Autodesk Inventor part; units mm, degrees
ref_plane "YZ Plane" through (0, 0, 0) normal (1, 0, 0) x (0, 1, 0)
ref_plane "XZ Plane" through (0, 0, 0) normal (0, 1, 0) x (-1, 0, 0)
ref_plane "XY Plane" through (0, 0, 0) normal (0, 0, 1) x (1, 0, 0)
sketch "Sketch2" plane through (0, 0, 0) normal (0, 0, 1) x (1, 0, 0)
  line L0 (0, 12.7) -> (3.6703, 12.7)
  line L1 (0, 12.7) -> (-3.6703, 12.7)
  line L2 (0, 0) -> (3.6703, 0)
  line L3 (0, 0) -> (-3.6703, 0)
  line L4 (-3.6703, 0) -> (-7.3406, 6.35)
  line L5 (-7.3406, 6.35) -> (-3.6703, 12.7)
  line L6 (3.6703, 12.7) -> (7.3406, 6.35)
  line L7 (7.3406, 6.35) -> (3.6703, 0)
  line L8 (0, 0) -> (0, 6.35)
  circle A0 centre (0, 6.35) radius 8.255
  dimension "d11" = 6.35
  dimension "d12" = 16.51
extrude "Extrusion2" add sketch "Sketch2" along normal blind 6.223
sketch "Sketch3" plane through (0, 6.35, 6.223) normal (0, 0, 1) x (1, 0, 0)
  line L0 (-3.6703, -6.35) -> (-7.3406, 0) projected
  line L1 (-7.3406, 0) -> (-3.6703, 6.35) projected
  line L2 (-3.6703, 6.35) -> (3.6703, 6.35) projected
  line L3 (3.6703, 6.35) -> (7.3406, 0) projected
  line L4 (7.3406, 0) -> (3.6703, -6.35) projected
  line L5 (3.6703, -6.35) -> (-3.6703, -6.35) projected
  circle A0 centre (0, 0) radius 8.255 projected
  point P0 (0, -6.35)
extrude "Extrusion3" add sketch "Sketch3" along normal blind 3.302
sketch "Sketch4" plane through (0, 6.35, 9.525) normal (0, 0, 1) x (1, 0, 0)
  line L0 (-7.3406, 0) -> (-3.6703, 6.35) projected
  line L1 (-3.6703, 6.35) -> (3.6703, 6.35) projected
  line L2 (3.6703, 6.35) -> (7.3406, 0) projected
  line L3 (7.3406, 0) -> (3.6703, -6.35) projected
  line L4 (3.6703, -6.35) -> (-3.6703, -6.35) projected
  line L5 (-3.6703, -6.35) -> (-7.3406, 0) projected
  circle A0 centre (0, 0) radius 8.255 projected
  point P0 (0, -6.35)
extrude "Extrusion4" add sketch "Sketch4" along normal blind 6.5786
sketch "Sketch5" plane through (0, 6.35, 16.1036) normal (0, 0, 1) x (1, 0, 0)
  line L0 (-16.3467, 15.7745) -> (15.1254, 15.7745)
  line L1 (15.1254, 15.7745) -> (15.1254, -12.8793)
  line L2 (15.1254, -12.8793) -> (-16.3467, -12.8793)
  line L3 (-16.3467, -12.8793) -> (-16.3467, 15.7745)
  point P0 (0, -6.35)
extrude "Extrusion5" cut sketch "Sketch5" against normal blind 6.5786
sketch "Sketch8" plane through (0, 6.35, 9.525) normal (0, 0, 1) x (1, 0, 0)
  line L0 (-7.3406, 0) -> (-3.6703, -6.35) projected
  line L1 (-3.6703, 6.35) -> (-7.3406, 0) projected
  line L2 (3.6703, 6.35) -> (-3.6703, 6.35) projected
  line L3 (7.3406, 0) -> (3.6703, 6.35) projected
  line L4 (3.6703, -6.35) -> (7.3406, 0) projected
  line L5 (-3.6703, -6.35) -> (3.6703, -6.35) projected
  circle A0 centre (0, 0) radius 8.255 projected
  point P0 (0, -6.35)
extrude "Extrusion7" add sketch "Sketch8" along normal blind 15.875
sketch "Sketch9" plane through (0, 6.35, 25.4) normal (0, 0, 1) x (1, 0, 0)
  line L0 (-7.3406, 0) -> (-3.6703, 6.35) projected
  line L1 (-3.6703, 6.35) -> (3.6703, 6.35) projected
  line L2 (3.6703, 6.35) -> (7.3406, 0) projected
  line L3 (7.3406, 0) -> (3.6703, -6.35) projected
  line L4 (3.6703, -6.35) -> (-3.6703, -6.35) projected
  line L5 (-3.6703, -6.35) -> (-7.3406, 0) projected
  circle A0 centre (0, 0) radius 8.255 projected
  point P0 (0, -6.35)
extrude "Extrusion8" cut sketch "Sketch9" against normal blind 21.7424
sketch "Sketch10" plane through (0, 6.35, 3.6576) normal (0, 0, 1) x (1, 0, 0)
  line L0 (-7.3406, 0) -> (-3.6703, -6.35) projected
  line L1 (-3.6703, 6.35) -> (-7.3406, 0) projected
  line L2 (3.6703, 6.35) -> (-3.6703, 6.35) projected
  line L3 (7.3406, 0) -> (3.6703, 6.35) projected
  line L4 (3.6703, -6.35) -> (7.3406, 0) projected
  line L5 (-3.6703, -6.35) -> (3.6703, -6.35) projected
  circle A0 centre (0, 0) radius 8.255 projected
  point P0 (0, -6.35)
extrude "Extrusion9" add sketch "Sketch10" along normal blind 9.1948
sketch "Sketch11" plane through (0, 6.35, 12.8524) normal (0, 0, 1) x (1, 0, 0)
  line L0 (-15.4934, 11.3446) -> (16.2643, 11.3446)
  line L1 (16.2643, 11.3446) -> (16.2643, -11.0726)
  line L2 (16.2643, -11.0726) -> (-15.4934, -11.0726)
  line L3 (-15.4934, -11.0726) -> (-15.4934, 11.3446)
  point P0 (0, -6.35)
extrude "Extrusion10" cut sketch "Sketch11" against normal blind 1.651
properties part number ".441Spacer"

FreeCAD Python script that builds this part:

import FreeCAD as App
import Part
import Sketcher
Q = App.Units.Quantity

doc = App.newDocument("Part")
body = doc.addObject("PartDesign::Body", "Body")

sketch1 = body.newObject("Sketcher::SketchObject", "Sketch")
sketch1.AttachmentSupport = (doc.getObject("XY_Plane"), [""])
sketch1.MapMode = "FlatFace"
sketch1.addGeometry(Part.Circle(App.Vector(0, 6, 0), App.Vector(0, 0, 1), 8), False)
sketch1.addGeometry(Part.LineSegment(App.Vector(-4, 13, 0), App.Vector(4, 13, 0)), False)
sketch1.addGeometry(Part.LineSegment(App.Vector(4, 13, 0), App.Vector(7, 6, 0)), False)
sketch1.addGeometry(Part.LineSegment(App.Vector(7, 6, 0), App.Vector(4, 0, 0)), False)
sketch1.addGeometry(Part.LineSegment(App.Vector(4, 0, 0), App.Vector(-4, 0, 0)), False)
sketch1.addGeometry(Part.LineSegment(App.Vector(-4, 0, 0), App.Vector(-7, 6, 0)), False)
sketch1.addGeometry(Part.LineSegment(App.Vector(-7, 6, 0), App.Vector(-4, 13, 0)), False)
sketch1.addConstraint(Sketcher.Constraint("Coincident", 1, 2, 2, 1))
sketch1.addConstraint(Sketcher.Constraint("Coincident", 2, 2, 3, 1))
sketch1.addConstraint(Sketcher.Constraint("Coincident", 3, 2, 4, 1))
sketch1.addConstraint(Sketcher.Constraint("Coincident", 4, 2, 5, 1))
sketch1.addConstraint(Sketcher.Constraint("Coincident", 5, 2, 6, 1))
sketch1.addConstraint(Sketcher.Constraint("Coincident", 6, 2, 1, 1))
sketch1.addConstraint(Sketcher.Constraint("Horizontal", 1))
sketch1.addConstraint(Sketcher.Constraint("Horizontal", 4))
sketch1.addConstraint(Sketcher.Constraint("Symmetric", 3, 2, 4, 2, -1, 1))
sketch1.addConstraint(Sketcher.Constraint("Symmetric", 2, 2, 5, 2, -2))
sketch1.addConstraint(Sketcher.Constraint("PointOnObject", 0, 3, -2))
sketch1.addConstraint(Sketcher.Constraint("Parallel", 2, 5))
sketch1.addConstraint(Sketcher.Constraint("Parallel", 3, 6))
sketch1.addConstraint(Sketcher.Constraint("Horizontal", 0, 3, 2, 2))
sketch1.addConstraint(Sketcher.Constraint("Vertical", 1, 2, 3, 2))
sketch1.addConstraint(Sketcher.Constraint("Diameter", 0, Q("0.65 in")))
sketch1.addConstraint(Sketcher.Constraint("DistanceY", -1, 1, 0, 3, Q("0.25 in")))
sketch1.addConstraint(Sketcher.Constraint("DistanceX", 1, 1, 1, 2, Q("0.289 in")))
sketch1.addConstraint(Sketcher.Constraint("DistanceX", -1, 1, 2, 2, Q("0.289 in")))
pad1 = body.newObject("PartDesign::Pad", "Pad")
pad1.Profile = sketch1
pad1.Length = Q("0.245 in")

sketch2 = body.newObject("Sketcher::SketchObject", "Sketch001")
sketch2.AttachmentSupport = (doc.getObject("XY_Plane"), [""])
sketch2.MapMode = "FlatFace"
sketch2.AttachmentOffset = App.Placement(App.Vector(0, 0, 0.245 * 25.4), App.Rotation())
sketch2.addGeometry(Part.Circle(App.Vector(0, 6, 0), App.Vector(0, 0, 1), 8), False)
sketch2.addGeometry(Part.LineSegment(App.Vector(4, 0, 0), App.Vector(-4, 0, 0)), False)
sketch2.addGeometry(Part.LineSegment(App.Vector(-4, 0, 0), App.Vector(-7, 6, 0)), False)
sketch2.addGeometry(Part.LineSegment(App.Vector(-7, 6, 0), App.Vector(-4, 13, 0)), False)
sketch2.addGeometry(Part.LineSegment(App.Vector(-4, 13, 0), App.Vector(4, 13, 0)), False)
sketch2.addGeometry(Part.LineSegment(App.Vector(4, 13, 0), App.Vector(7, 6, 0)), False)
sketch2.addGeometry(Part.LineSegment(App.Vector(7, 6, 0), App.Vector(4, 0, 0)), False)
sketch2.addConstraint(Sketcher.Constraint("Coincident", 1, 2, 2, 1))
sketch2.addConstraint(Sketcher.Constraint("Coincident", 2, 2, 3, 1))
sketch2.addConstraint(Sketcher.Constraint("Coincident", 3, 2, 4, 1))
sketch2.addConstraint(Sketcher.Constraint("Coincident", 4, 2, 5, 1))
sketch2.addConstraint(Sketcher.Constraint("Coincident", 5, 2, 6, 1))
sketch2.addConstraint(Sketcher.Constraint("Coincident", 6, 2, 1, 1))
sketch2.addConstraint(Sketcher.Constraint("Horizontal", 1))
sketch2.addConstraint(Sketcher.Constraint("Horizontal", 4))
sketch2.addConstraint(Sketcher.Constraint("Symmetric", 1, 2, 6, 2, -1, 1))
sketch2.addConstraint(Sketcher.Constraint("Symmetric", 2, 2, 5, 2, -2))
sketch2.addConstraint(Sketcher.Constraint("PointOnObject", 0, 3, -2))
sketch2.addConstraint(Sketcher.Constraint("Parallel", 2, 5))
sketch2.addConstraint(Sketcher.Constraint("Parallel", 3, 6))
sketch2.addConstraint(Sketcher.Constraint("Horizontal", 0, 3, 2, 2))
sketch2.addConstraint(Sketcher.Constraint("Vertical", 1, 2, 3, 2))
sketch2.addConstraint(Sketcher.Constraint("Diameter", 0, Q("0.65 in")))
sketch2.addConstraint(Sketcher.Constraint("DistanceY", -1, 1, 3, 2, Q("0.5 in")))
sketch2.addConstraint(Sketcher.Constraint("DistanceX", 1, 2, 1, 1, Q("0.289 in")))
sketch2.addConstraint(Sketcher.Constraint("DistanceX", 2, 2, -1, 1, Q("0.289 in")))
pad2 = body.newObject("PartDesign::Pad", "Pad001")
pad2.Profile = sketch2
pad2.Length = Q("0.13 in")

sketch3 = body.newObject("Sketcher::SketchObject", "Sketch002")
sketch3.AttachmentSupport = (doc.getObject("XY_Plane"), [""])
sketch3.MapMode = "FlatFace"
sketch3.AttachmentOffset = App.Placement(App.Vector(0, 0, 0.375 * 25.4), App.Rotation())
sketch3.addGeometry(Part.Circle(App.Vector(0, 6, 0), App.Vector(0, 0, 1), 8), False)
sketch3.addGeometry(Part.LineSegment(App.Vector(-4, 0, 0), App.Vector(-7, 6, 0)), False)
sketch3.addGeometry(Part.LineSegment(App.Vector(-7, 6, 0), App.Vector(-4, 13, 0)), False)
sketch3.addGeometry(Part.LineSegment(App.Vector(-4, 13, 0), App.Vector(4, 13, 0)), False)
sketch3.addGeometry(Part.LineSegment(App.Vector(4, 13, 0), App.Vector(7, 6, 0)), False)
sketch3.addGeometry(Part.LineSegment(App.Vector(7, 6, 0), App.Vector(4, 0, 0)), False)
sketch3.addGeometry(Part.LineSegment(App.Vector(4, 0, 0), App.Vector(-4, 0, 0)), False)
sketch3.addConstraint(Sketcher.Constraint("Coincident", 1, 2, 2, 1))
sketch3.addConstraint(Sketcher.Constraint("Coincident", 2, 2, 3, 1))
sketch3.addConstraint(Sketcher.Constraint("Coincident", 3, 2, 4, 1))
sketch3.addConstraint(Sketcher.Constraint("Coincident", 4, 2, 5, 1))
sketch3.addConstraint(Sketcher.Constraint("Coincident", 5, 2, 6, 1))
sketch3.addConstraint(Sketcher.Constraint("Coincident", 6, 2, 1, 1))
sketch3.addConstraint(Sketcher.Constraint("Horizontal", 3))
sketch3.addConstraint(Sketcher.Constraint("Horizontal", 6))
sketch3.addConstraint(Sketcher.Constraint("Symmetric", 5, 2, 6, 2, -1, 1))
sketch3.addConstraint(Sketcher.Constraint("Symmetric", 1, 2, 4, 2, -2))
sketch3.addConstraint(Sketcher.Constraint("PointOnObject", 0, 3, -2))
sketch3.addConstraint(Sketcher.Constraint("Parallel", 1, 4))
sketch3.addConstraint(Sketcher.Constraint("Parallel", 2, 5))
sketch3.addConstraint(Sketcher.Constraint("Horizontal", 0, 3, 1, 2))
sketch3.addConstraint(Sketcher.Constraint("Vertical", 3, 2, 5, 2))
sketch3.addConstraint(Sketcher.Constraint("Diameter", 0, Q("0.65 in")))
sketch3.addConstraint(Sketcher.Constraint("DistanceY", -1, 1, 2, 2, Q("0.5 in")))
sketch3.addConstraint(Sketcher.Constraint("DistanceX", 3, 1, 3, 2, Q("0.289 in")))
sketch3.addConstraint(Sketcher.Constraint("DistanceX", 1, 2, -1, 1, Q("0.289 in")))
pad3 = body.newObject("PartDesign::Pad", "Pad002")
pad3.Profile = sketch3
pad3.Length = Q("0.259 in")

sketch4 = body.newObject("Sketcher::SketchObject", "Sketch003")
sketch4.AttachmentSupport = (doc.getObject("XY_Plane"), [""])
sketch4.MapMode = "FlatFace"
sketch4.AttachmentOffset = App.Placement(App.Vector(0, 0, 0.634 * 25.4), App.Rotation())
sketch4.addGeometry(Part.LineSegment(App.Vector(15, 22, 0), App.Vector(-16, 22, 0)), False)
sketch4.addGeometry(Part.LineSegment(App.Vector(-16, 22, 0), App.Vector(-16, -7, 0)), False)
sketch4.addGeometry(Part.LineSegment(App.Vector(-16, -7, 0), App.Vector(15, -7, 0)), False)
sketch4.addGeometry(Part.LineSegment(App.Vector(15, -7, 0), App.Vector(15, 22, 0)), False)
sketch4.addConstraint(Sketcher.Constraint("Coincident", 0, 2, 1, 1))
sketch4.addConstraint(Sketcher.Constraint("Coincident", 1, 2, 2, 1))
sketch4.addConstraint(Sketcher.Constraint("Coincident", 2, 2, 3, 1))
sketch4.addConstraint(Sketcher.Constraint("Coincident", 3, 2, 0, 1))
sketch4.addConstraint(Sketcher.Constraint("Horizontal", 0))
sketch4.addConstraint(Sketcher.Constraint("Vertical", 1))
sketch4.addConstraint(Sketcher.Constraint("Horizontal", 2))
sketch4.addConstraint(Sketcher.Constraint("Vertical", 3))
sketch4.addConstraint(Sketcher.Constraint("DistanceY", 1, 2, 1, 1, Q("1.1281 in")))
sketch4.addConstraint(Sketcher.Constraint("DistanceX", 0, 2, 0, 1, 31.472))
sketch4.addConstraint(Sketcher.Constraint("DistanceX", -1, 1, 2, 2, Q("0.5955 in")))
sketch4.addConstraint(Sketcher.Constraint("DistanceY", -1, 1, 0, 2, 22.1245))
pocket1 = body.newObject("PartDesign::Pocket", "Pocket")
pocket1.Profile = sketch4
pocket1.Length = Q("0.259 in")

sketch5 = body.newObject("Sketcher::SketchObject", "Sketch004")
sketch5.AttachmentSupport = (doc.getObject("XY_Plane"), [""])
sketch5.MapMode = "FlatFace"
sketch5.AttachmentOffset = App.Placement(App.Vector(0, 0, 0.375 * 25.4), App.Rotation())
sketch5.addGeometry(Part.Circle(App.Vector(0, 6, 0), App.Vector(0, 0, 1), 8), False)
sketch5.addGeometry(Part.LineSegment(App.Vector(-4, 0, 0), App.Vector(-7, 6, 0)), False)
sketch5.addGeometry(Part.LineSegment(App.Vector(-7, 6, 0), App.Vector(-4, 13, 0)), False)
sketch5.addGeometry(Part.LineSegment(App.Vector(-4, 13, 0), App.Vector(4, 13, 0)), False)
sketch5.addGeometry(Part.LineSegment(App.Vector(4, 13, 0), App.Vector(7, 6, 0)), False)
sketch5.addGeometry(Part.LineSegment(App.Vector(7, 6, 0), App.Vector(4, 0, 0)), False)
sketch5.addGeometry(Part.LineSegment(App.Vector(4, 0, 0), App.Vector(-4, 0, 0)), False)
sketch5.addConstraint(Sketcher.Constraint("Coincident", 1, 2, 2, 1))
sketch5.addConstraint(Sketcher.Constraint("Coincident", 2, 2, 3, 1))
sketch5.addConstraint(Sketcher.Constraint("Coincident", 3, 2, 4, 1))
sketch5.addConstraint(Sketcher.Constraint("Coincident", 4, 2, 5, 1))
sketch5.addConstraint(Sketcher.Constraint("Coincident", 5, 2, 6, 1))
sketch5.addConstraint(Sketcher.Constraint("Coincident", 6, 2, 1, 1))
sketch5.addConstraint(Sketcher.Constraint("Horizontal", 3))
sketch5.addConstraint(Sketcher.Constraint("Horizontal", 6))
sketch5.addConstraint(Sketcher.Constraint("Symmetric", 5, 2, 6, 2, -1, 1))
sketch5.addConstraint(Sketcher.Constraint("Symmetric", 1, 2, 4, 2, -2))
sketch5.addConstraint(Sketcher.Constraint("PointOnObject", 0, 3, -2))
sketch5.addConstraint(Sketcher.Constraint("Parallel", 1, 4))
sketch5.addConstraint(Sketcher.Constraint("Parallel", 2, 5))
sketch5.addConstraint(Sketcher.Constraint("Horizontal", 0, 3, 1, 2))
sketch5.addConstraint(Sketcher.Constraint("Vertical", 3, 2, 5, 2))
sketch5.addConstraint(Sketcher.Constraint("Diameter", 0, Q("0.65 in")))
sketch5.addConstraint(Sketcher.Constraint("DistanceY", -1, 1, 2, 2, Q("0.5 in")))
sketch5.addConstraint(Sketcher.Constraint("DistanceX", 3, 1, 3, 2, Q("0.289 in")))
sketch5.addConstraint(Sketcher.Constraint("DistanceX", 1, 2, -1, 1, Q("0.289 in")))
pad4 = body.newObject("PartDesign::Pad", "Pad003")
pad4.Profile = sketch5
pad4.Length = Q("0.625 in")

sketch6 = body.newObject("Sketcher::SketchObject", "Sketch005")
sketch6.AttachmentSupport = (doc.getObject("XY_Plane"), [""])
sketch6.MapMode = "FlatFace"
sketch6.AttachmentOffset = App.Placement(App.Vector(0, 0, 1 * 25.4), App.Rotation())
sketch6.addGeometry(Part.Circle(App.Vector(0, 6, 0), App.Vector(0, 0, 1), 8), False)
sketch6.addGeometry(Part.LineSegment(App.Vector(-4, 0, 0), App.Vector(-7, 6, 0)), False)
sketch6.addGeometry(Part.LineSegment(App.Vector(-7, 6, 0), App.Vector(-4, 13, 0)), False)
sketch6.addGeometry(Part.LineSegment(App.Vector(-4, 13, 0), App.Vector(4, 13, 0)), False)
sketch6.addGeometry(Part.LineSegment(App.Vector(4, 13, 0), App.Vector(7, 6, 0)), False)
sketch6.addGeometry(Part.LineSegment(App.Vector(7, 6, 0), App.Vector(4, 0, 0)), False)
sketch6.addGeometry(Part.LineSegment(App.Vector(4, 0, 0), App.Vector(-4, 0, 0)), False)
sketch6.addConstraint(Sketcher.Constraint("Coincident", 1, 2, 2, 1))
sketch6.addConstraint(Sketcher.Constraint("Coincident", 2, 2, 3, 1))
sketch6.addConstraint(Sketcher.Constraint("Coincident", 3, 2, 4, 1))
sketch6.addConstraint(Sketcher.Constraint("Coincident", 4, 2, 5, 1))
sketch6.addConstraint(Sketcher.Constraint("Coincident", 5, 2, 6, 1))
sketch6.addConstraint(Sketcher.Constraint("Coincident", 6, 2, 1, 1))
sketch6.addConstraint(Sketcher.Constraint("Horizontal", 3))
sketch6.addConstraint(Sketcher.Constraint("Horizontal", 6))
sketch6.addConstraint(Sketcher.Constraint("Symmetric", 5, 2, 6, 2, -1, 1))
sketch6.addConstraint(Sketcher.Constraint("Symmetric", 1, 2, 4, 2, -2))
sketch6.addConstraint(Sketcher.Constraint("PointOnObject", 0, 3, -2))
sketch6.addConstraint(Sketcher.Constraint("Parallel", 1, 4))
sketch6.addConstraint(Sketcher.Constraint("Parallel", 2, 5))
sketch6.addConstraint(Sketcher.Constraint("Horizontal", 0, 3, 1, 2))
sketch6.addConstraint(Sketcher.Constraint("Vertical", 3, 2, 5, 2))
sketch6.addConstraint(Sketcher.Constraint("Diameter", 0, Q("0.65 in")))
sketch6.addConstraint(Sketcher.Constraint("DistanceY", -1, 1, 2, 2, Q("0.5 in")))
sketch6.addConstraint(Sketcher.Constraint("DistanceX", 3, 1, 3, 2, Q("0.289 in")))
sketch6.addConstraint(Sketcher.Constraint("DistanceX", 1, 2, -1, 1, Q("0.289 in")))
pocket2 = body.newObject("PartDesign::Pocket", "Pocket001")
pocket2.Profile = sketch6
pocket2.Length = Q("0.856 in")

sketch7 = body.newObject("Sketcher::SketchObject", "Sketch006")
sketch7.AttachmentSupport = (doc.getObject("XY_Plane"), [""])
sketch7.MapMode = "FlatFace"
sketch7.AttachmentOffset = App.Placement(App.Vector(0, 0, 0.144 * 25.4), App.Rotation())
sketch7.addGeometry(Part.Circle(App.Vector(0, 6, 0), App.Vector(0, 0, 1), 8), False)
sketch7.addGeometry(Part.LineSegment(App.Vector(-4, 0, 0), App.Vector(-7, 6, 0)), False)
sketch7.addGeometry(Part.LineSegment(App.Vector(-7, 6, 0), App.Vector(-4, 13, 0)), False)
sketch7.addGeometry(Part.LineSegment(App.Vector(-4, 13, 0), App.Vector(4, 13, 0)), False)
sketch7.addGeometry(Part.LineSegment(App.Vector(4, 13, 0), App.Vector(7, 6, 0)), False)
sketch7.addGeometry(Part.LineSegment(App.Vector(7, 6, 0), App.Vector(4, 0, 0)), False)
sketch7.addGeometry(Part.LineSegment(App.Vector(4, 0, 0), App.Vector(-4, 0, 0)), False)
sketch7.addConstraint(Sketcher.Constraint("Coincident", 1, 2, 2, 1))
sketch7.addConstraint(Sketcher.Constraint("Coincident", 2, 2, 3, 1))
sketch7.addConstraint(Sketcher.Constraint("Coincident", 3, 2, 4, 1))
sketch7.addConstraint(Sketcher.Constraint("Coincident", 4, 2, 5, 1))
sketch7.addConstraint(Sketcher.Constraint("Coincident", 5, 2, 6, 1))
sketch7.addConstraint(Sketcher.Constraint("Coincident", 6, 2, 1, 1))
sketch7.addConstraint(Sketcher.Constraint("Horizontal", 3))
sketch7.addConstraint(Sketcher.Constraint("Horizontal", 6))
sketch7.addConstraint(Sketcher.Constraint("Symmetric", 5, 2, 6, 2, -1, 1))
sketch7.addConstraint(Sketcher.Constraint("Symmetric", 1, 2, 4, 2, -2))
sketch7.addConstraint(Sketcher.Constraint("PointOnObject", 0, 3, -2))
sketch7.addConstraint(Sketcher.Constraint("Parallel", 1, 4))
sketch7.addConstraint(Sketcher.Constraint("Parallel", 2, 5))
sketch7.addConstraint(Sketcher.Constraint("Horizontal", 0, 3, 1, 2))
sketch7.addConstraint(Sketcher.Constraint("Vertical", 3, 2, 5, 2))
sketch7.addConstraint(Sketcher.Constraint("Diameter", 0, Q("0.65 in")))
sketch7.addConstraint(Sketcher.Constraint("DistanceY", -1, 1, 2, 2, Q("0.5 in")))
sketch7.addConstraint(Sketcher.Constraint("DistanceX", 3, 1, 3, 2, Q("0.289 in")))
sketch7.addConstraint(Sketcher.Constraint("DistanceX", 1, 2, -1, 1, Q("0.289 in")))
pad5 = body.newObject("PartDesign::Pad", "Pad004")
pad5.Profile = sketch7
pad5.Length = Q("0.362 in")

sketch8 = body.newObject("Sketcher::SketchObject", "Sketch007")
sketch8.AttachmentSupport = (doc.getObject("XY_Plane"), [""])
sketch8.MapMode = "FlatFace"
sketch8.AttachmentOffset = App.Placement(App.Vector(0, 0, 0.506 * 25.4), App.Rotation())
sketch8.addGeometry(Part.LineSegment(App.Vector(16, 18, 0), App.Vector(-15, 18, 0)), False)
sketch8.addGeometry(Part.LineSegment(App.Vector(-15, 18, 0), App.Vector(-15, -5, 0)), False)
sketch8.addGeometry(Part.LineSegment(App.Vector(-15, -5, 0), App.Vector(16, -5, 0)), False)
sketch8.addGeometry(Part.LineSegment(App.Vector(16, -5, 0), App.Vector(16, 18, 0)), False)
sketch8.addConstraint(Sketcher.Constraint("Coincident", 0, 2, 1, 1))
sketch8.addConstraint(Sketcher.Constraint("Coincident", 1, 2, 2, 1))
sketch8.addConstraint(Sketcher.Constraint("Coincident", 2, 2, 3, 1))
sketch8.addConstraint(Sketcher.Constraint("Coincident", 3, 2, 0, 1))
sketch8.addConstraint(Sketcher.Constraint("Horizontal", 0))
sketch8.addConstraint(Sketcher.Constraint("Vertical", 1))
sketch8.addConstraint(Sketcher.Constraint("Horizontal", 2))
sketch8.addConstraint(Sketcher.Constraint("Vertical", 3))
sketch8.addConstraint(Sketcher.Constraint("DistanceX", 0, 2, 0, 1, Q("1.2503 in")))
sketch8.addConstraint(Sketcher.Constraint("DistanceY", 1, 2, 1, 1, 22.4172))
sketch8.addConstraint(Sketcher.Constraint("DistanceX", 0, 2, -1, 1, 15.4934))
sketch8.addConstraint(Sketcher.Constraint("DistanceY", -1, 1, 0, 2, 17.6946))
pocket3 = body.newObject("PartDesign::Pocket", "Pocket002")
pocket3.Profile = sketch8
pocket3.Length = Q("0.065 in")

doc.recompute()
